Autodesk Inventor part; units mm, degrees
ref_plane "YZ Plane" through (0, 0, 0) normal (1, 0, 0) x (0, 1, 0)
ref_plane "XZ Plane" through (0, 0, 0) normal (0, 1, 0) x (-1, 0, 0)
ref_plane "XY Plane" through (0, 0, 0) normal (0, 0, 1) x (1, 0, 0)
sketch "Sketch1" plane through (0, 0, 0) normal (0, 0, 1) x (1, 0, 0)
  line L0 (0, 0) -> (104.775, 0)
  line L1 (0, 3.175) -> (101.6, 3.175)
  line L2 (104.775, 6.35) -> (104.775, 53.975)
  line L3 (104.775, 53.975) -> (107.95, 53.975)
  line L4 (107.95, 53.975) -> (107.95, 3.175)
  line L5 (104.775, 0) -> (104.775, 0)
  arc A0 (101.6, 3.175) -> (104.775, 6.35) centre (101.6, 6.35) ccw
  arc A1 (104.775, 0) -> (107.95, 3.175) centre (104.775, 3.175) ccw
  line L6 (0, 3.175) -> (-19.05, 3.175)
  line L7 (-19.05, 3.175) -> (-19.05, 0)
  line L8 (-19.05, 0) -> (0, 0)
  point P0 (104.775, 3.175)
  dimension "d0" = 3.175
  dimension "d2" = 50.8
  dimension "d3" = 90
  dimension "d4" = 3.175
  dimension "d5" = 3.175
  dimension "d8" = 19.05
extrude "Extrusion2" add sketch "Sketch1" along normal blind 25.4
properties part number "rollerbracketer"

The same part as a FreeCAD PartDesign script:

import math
import FreeCAD as App
import Part
import Sketcher
from FreeCAD import Vector
Q = App.Units.Quantity

doc = App.newDocument("Part")
body = doc.addObject("PartDesign::Body", "Body")

# Sketch on XY plane
sketch1 = body.newObject("Sketcher::SketchObject", "Sketch")
sketch1.AttachmentSupport = (doc.getObject("XY_Plane"), [""])
sketch1.MapMode = "FlatFace"
sketch1.addGeometry([
    Part.LineSegment(Vector(-19.1, 0, 0), Vector(104.8, 0, 0)),  # 0
    Part.ArcOfCircle(Part.Circle(Vector(104.8, 3.2, 0), Vector(0, 0, 1), 3.2), math.radians(-90), math.radians(0)),  # 1
    Part.LineSegment(Vector(108, 3.2, 0), Vector(108, 54, 0)),  # 2
    Part.LineSegment(Vector(108, 54, 0), Vector(104.8, 54, 0)),  # 3
    Part.LineSegment(Vector(104.8, 54, 0), Vector(104.8, 6.3, 0)),  # 4
    Part.ArcOfCircle(Part.Circle(Vector(101.6, 6.3, 0), Vector(0, 0, 1), 3.2), math.radians(-90), math.radians(0)),  # 5
    Part.LineSegment(Vector(101.6, 3.2, 0), Vector(-19.1, 3.2, 0)),  # 6
    Part.LineSegment(Vector(-19.1, 3.2, 0), Vector(-19.1, 0, 0)),  # 7
], False)
sketch1.addConstraint([
    Sketcher.Constraint("Tangent", 0, 2, 1, 1),
    Sketcher.Constraint("Tangent", 1, 2, 2, 1),
    Sketcher.Constraint("Coincident", 2, 2, 3, 1),
    Sketcher.Constraint("Coincident", 3, 2, 4, 1),
    Sketcher.Constraint("Tangent", 4, 2, 5, 2),
    Sketcher.Constraint("Tangent", 5, 1, 6, 1),
    Sketcher.Constraint("Coincident", 6, 2, 7, 1),
    Sketcher.Constraint("Coincident", 7, 2, 0, 1),
    Sketcher.Constraint("Horizontal", 0),
    Sketcher.Constraint("Vertical", 2),
    Sketcher.Constraint("Horizontal", 3),
    Sketcher.Constraint("Vertical", 4),
    Sketcher.Constraint("Horizontal", 6),
    Sketcher.Constraint("Vertical", 7),
    Sketcher.Constraint("Equal", 1, 5),
    Sketcher.Constraint("PointOnObject", 0, 2, -1),
    Sketcher.Constraint("Horizontal", 1, 2, 5, 1),
    Sketcher.Constraint("Vertical", 0, 2, 3, 2),
    Sketcher.Constraint("DistanceY", 2, 1, 2, 2, Q("2 in")),
    Sketcher.Constraint("Radius", 1, Q("0.125 in")),
    Sketcher.Constraint("DistanceX", 6, 2, -1, 1, Q("0.75 in")),
    Sketcher.Constraint("DistanceX", -1, 1, 5, 3, Q("4 in")),
])
pad1 = body.newObject("PartDesign::Pad", "Pad")
pad1.Profile = sketch1
pad1.Length = Q("1 in")

doc.recompute()
